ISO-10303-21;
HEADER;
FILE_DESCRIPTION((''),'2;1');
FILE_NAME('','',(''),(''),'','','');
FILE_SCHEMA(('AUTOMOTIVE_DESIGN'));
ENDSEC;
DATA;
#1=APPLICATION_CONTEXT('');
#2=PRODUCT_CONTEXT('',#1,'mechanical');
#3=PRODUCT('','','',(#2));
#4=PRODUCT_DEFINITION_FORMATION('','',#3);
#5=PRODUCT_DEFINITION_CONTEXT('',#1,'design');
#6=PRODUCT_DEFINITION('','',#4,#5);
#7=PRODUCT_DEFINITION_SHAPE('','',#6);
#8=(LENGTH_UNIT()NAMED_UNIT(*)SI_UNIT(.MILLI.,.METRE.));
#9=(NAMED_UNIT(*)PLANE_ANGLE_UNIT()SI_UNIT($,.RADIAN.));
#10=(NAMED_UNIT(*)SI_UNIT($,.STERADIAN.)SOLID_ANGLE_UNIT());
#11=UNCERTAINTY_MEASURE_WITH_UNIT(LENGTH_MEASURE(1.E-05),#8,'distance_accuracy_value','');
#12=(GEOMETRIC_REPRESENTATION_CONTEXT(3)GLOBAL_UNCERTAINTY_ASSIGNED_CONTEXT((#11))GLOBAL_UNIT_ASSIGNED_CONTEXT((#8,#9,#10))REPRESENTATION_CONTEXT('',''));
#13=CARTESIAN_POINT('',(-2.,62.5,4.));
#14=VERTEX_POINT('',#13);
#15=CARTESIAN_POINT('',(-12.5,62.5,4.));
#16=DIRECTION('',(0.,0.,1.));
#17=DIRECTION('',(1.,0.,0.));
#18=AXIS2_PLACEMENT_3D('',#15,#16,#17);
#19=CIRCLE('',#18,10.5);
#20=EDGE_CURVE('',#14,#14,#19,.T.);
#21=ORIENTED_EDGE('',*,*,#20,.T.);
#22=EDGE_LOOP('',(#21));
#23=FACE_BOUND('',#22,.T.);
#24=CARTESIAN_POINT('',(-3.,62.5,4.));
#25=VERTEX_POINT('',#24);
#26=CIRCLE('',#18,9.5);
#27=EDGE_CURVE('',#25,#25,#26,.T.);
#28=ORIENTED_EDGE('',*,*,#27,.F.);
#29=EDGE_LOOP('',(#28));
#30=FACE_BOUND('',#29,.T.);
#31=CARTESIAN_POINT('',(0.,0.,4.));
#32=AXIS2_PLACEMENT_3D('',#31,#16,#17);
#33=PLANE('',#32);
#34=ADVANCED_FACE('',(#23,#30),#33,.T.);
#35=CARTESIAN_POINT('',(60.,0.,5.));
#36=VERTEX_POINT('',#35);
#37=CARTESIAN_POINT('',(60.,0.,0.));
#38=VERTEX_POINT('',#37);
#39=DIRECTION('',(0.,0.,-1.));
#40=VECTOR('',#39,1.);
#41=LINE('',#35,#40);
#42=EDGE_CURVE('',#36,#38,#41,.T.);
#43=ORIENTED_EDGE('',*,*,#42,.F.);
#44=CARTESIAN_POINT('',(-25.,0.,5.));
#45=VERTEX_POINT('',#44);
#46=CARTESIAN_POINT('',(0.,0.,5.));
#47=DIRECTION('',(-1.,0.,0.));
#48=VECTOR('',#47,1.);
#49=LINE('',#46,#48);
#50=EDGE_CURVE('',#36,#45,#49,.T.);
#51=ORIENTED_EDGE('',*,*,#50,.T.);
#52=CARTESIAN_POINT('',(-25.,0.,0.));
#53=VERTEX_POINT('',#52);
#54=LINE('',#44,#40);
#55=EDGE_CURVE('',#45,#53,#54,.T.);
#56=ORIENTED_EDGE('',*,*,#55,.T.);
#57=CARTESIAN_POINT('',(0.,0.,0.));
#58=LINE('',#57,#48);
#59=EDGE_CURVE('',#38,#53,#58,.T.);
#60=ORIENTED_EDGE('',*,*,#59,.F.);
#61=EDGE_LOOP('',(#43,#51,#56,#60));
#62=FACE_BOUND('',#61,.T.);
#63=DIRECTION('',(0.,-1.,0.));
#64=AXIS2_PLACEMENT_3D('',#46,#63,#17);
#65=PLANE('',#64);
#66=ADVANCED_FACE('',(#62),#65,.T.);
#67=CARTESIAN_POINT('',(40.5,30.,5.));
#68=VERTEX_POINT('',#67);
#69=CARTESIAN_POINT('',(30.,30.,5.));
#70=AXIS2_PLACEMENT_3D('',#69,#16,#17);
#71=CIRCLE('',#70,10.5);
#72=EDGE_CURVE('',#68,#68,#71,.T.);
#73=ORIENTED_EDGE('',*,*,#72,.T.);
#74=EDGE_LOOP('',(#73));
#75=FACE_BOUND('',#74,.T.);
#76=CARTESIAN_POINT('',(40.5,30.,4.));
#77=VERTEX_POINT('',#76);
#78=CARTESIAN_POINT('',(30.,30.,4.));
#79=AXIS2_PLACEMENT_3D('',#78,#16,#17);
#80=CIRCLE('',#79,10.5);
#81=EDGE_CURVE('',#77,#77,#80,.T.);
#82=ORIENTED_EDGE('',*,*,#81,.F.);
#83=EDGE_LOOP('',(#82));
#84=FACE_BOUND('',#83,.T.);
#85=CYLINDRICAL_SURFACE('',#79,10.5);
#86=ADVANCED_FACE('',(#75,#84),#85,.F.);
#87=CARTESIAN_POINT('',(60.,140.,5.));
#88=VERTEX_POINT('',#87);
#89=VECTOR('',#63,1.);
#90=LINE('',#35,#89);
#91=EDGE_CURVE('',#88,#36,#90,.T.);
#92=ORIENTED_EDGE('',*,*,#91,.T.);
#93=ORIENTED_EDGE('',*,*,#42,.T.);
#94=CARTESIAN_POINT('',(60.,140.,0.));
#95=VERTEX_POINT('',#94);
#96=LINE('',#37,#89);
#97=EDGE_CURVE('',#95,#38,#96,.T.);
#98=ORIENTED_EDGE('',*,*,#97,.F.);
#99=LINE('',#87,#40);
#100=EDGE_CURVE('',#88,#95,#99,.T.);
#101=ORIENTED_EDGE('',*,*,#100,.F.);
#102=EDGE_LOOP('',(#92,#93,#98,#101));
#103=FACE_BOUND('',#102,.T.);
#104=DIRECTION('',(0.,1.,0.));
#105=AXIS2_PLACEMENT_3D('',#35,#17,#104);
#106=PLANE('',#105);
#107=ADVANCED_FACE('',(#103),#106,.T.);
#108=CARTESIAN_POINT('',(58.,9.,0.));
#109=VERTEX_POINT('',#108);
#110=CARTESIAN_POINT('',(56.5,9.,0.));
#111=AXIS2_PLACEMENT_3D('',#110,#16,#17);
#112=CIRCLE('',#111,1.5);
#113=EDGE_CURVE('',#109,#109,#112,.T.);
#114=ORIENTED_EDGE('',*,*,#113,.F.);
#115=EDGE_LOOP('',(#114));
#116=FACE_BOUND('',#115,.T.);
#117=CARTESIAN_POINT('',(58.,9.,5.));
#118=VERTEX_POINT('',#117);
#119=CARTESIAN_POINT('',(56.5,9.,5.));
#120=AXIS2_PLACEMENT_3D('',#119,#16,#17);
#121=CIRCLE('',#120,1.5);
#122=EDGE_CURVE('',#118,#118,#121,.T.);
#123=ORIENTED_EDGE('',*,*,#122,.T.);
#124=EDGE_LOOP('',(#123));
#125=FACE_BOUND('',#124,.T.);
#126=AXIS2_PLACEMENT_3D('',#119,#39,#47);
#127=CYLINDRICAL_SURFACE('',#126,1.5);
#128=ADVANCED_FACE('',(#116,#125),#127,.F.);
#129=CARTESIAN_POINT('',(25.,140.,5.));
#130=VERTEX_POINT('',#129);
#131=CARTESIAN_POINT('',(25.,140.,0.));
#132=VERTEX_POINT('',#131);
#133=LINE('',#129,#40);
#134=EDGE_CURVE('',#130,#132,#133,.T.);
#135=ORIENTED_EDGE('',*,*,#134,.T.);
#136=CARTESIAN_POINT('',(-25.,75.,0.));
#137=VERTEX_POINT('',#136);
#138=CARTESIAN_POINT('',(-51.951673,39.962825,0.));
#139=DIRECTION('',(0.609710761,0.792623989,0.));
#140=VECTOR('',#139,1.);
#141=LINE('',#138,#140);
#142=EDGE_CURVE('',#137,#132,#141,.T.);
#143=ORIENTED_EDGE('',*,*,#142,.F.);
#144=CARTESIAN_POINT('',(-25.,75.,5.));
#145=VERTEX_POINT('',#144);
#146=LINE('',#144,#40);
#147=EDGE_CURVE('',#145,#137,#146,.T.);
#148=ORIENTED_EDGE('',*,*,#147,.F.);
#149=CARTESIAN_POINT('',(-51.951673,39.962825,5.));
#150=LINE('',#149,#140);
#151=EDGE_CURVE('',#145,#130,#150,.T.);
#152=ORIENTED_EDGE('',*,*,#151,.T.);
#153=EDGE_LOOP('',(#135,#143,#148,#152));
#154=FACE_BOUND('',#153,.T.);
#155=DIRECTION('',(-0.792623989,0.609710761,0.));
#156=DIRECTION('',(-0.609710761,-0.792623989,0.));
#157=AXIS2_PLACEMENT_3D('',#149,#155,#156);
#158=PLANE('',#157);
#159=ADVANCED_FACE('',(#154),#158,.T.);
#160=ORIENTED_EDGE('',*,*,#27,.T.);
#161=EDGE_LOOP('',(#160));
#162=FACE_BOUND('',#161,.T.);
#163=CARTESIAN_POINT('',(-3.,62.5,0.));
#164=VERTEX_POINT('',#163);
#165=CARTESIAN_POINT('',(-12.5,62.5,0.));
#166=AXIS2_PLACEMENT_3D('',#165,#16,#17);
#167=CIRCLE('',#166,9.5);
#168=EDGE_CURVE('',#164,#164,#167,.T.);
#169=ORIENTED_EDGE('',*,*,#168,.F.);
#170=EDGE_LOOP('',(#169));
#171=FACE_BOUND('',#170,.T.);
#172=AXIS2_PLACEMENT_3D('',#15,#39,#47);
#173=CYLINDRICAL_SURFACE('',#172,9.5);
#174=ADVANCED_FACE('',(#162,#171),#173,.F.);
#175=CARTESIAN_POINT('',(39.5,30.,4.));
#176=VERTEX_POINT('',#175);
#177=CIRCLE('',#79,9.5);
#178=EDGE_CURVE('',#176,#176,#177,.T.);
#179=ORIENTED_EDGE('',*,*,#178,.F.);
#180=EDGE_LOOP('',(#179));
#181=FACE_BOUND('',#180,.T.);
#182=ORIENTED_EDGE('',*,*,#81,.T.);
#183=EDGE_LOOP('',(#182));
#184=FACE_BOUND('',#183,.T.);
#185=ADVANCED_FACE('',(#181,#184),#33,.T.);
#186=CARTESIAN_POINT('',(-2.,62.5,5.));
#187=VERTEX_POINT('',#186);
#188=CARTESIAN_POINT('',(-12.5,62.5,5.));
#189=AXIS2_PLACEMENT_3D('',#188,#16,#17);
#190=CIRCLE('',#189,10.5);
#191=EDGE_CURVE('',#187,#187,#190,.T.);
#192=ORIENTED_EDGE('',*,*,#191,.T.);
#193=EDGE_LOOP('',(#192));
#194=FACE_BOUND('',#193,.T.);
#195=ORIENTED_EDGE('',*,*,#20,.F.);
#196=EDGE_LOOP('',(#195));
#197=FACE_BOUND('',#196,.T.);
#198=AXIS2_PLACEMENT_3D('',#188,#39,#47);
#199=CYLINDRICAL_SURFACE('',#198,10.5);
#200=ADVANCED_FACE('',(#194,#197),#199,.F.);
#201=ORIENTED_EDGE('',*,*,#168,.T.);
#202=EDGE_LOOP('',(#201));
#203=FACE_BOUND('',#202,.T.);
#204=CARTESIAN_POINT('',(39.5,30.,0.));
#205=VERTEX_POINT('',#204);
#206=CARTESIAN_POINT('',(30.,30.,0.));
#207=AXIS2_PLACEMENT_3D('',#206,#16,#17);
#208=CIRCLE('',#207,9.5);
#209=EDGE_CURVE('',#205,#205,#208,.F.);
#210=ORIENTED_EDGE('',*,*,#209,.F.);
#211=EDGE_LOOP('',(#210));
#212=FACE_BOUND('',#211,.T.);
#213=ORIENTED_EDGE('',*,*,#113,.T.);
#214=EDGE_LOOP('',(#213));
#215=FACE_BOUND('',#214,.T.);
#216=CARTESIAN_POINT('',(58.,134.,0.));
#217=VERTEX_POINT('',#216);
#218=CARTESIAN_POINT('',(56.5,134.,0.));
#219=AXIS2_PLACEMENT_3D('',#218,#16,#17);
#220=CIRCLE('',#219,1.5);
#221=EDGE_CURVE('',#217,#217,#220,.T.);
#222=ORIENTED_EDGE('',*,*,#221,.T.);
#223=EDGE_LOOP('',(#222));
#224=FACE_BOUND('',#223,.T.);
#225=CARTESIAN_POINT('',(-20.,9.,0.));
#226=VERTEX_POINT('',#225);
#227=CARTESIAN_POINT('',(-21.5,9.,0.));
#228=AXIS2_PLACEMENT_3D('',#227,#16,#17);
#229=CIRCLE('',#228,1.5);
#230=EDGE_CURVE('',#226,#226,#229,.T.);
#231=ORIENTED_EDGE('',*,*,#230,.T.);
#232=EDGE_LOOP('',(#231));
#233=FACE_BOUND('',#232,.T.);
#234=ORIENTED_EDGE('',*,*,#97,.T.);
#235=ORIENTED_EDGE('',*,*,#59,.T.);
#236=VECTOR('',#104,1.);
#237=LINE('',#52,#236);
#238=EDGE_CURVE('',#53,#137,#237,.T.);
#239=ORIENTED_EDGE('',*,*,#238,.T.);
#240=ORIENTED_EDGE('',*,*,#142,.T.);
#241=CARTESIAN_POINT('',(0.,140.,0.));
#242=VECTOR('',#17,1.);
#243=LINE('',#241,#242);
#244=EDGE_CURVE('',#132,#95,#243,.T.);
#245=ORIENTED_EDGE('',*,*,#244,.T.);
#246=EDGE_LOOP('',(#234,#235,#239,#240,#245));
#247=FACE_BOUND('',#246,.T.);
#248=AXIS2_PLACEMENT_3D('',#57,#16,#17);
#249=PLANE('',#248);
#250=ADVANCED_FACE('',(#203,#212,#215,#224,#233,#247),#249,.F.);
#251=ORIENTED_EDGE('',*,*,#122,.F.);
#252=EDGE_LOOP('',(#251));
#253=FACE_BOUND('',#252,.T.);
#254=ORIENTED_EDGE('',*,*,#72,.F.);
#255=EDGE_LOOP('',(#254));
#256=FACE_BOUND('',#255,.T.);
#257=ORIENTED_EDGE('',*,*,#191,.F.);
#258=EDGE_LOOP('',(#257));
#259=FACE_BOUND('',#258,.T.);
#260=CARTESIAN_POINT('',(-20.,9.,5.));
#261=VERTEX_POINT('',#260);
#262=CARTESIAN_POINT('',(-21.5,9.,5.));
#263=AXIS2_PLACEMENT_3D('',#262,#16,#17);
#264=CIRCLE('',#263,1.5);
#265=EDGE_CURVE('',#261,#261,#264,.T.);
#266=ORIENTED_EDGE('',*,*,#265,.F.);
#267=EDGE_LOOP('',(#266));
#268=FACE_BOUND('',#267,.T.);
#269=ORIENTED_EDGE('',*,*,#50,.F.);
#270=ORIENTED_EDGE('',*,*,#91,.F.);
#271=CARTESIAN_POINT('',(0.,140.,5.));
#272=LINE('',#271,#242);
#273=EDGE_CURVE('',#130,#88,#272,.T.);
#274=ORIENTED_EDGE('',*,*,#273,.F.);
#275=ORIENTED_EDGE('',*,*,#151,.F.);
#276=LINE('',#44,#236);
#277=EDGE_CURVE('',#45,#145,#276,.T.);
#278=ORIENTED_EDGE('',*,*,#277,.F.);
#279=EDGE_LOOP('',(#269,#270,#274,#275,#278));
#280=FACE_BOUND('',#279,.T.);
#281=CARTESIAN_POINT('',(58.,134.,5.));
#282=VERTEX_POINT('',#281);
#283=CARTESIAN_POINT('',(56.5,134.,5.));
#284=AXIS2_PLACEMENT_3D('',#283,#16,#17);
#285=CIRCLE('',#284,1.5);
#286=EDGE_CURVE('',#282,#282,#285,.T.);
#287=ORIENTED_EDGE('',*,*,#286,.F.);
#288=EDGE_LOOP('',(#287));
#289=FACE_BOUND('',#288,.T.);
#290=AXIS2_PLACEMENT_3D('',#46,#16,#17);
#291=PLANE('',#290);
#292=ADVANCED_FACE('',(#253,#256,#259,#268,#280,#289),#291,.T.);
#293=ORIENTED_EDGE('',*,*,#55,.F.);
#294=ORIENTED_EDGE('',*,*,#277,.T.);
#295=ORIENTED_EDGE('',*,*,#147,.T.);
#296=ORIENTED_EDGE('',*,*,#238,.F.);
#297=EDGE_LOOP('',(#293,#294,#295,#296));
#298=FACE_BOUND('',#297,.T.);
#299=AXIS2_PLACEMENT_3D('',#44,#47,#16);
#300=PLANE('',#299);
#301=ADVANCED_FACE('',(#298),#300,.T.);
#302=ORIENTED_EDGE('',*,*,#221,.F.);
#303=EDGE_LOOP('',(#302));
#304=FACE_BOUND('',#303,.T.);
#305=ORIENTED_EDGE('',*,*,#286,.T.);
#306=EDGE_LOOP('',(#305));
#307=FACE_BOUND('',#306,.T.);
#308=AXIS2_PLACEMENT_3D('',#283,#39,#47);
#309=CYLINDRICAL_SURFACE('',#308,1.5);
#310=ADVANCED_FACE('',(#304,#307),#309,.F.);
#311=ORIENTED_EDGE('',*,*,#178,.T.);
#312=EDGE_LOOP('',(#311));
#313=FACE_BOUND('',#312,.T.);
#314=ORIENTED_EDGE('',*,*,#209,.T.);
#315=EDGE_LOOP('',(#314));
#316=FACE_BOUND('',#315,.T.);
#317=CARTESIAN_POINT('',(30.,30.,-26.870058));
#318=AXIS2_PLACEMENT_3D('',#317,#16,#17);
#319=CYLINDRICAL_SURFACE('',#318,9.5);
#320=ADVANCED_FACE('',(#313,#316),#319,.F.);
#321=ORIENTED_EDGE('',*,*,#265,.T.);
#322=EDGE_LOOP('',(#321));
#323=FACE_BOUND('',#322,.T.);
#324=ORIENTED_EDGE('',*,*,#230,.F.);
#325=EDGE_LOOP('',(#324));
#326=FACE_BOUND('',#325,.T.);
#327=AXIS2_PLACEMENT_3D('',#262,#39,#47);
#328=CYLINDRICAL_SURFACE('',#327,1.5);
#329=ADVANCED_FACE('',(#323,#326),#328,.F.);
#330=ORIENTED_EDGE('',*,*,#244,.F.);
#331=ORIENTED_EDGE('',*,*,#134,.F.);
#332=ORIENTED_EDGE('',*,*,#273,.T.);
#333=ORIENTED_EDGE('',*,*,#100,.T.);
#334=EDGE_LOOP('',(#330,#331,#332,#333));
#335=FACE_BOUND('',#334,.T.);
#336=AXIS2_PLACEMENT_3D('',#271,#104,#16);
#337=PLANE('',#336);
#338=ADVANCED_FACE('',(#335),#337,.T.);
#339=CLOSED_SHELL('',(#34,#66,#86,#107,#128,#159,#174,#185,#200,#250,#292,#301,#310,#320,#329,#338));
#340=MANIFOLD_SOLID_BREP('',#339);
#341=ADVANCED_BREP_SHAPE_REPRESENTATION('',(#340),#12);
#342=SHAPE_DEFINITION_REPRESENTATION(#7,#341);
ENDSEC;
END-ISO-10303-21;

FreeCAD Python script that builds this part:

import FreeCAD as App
import Part
import Sketcher

V = App.Vector

doc = App.newDocument("Part")
body = doc.addObject("PartDesign::Body", "Body")

# Sketch on XY plane
sketch1 = body.newObject("Sketcher::SketchObject", "Sketch")
sketch1.AttachmentSupport = (doc.getObject("XY_Plane"), [""])
sketch1.MapMode = "FlatFace"
sketch1.addGeometry([
    Part.LineSegment(V(-25, 0, 0), V(60, 0, 0)),  # 0
    Part.LineSegment(V(60, 0, 0), V(60, 140, 0)),  # 1
    Part.LineSegment(V(60, 140, 0), V(25, 140, 0)),  # 2
    Part.LineSegment(V(25, 140, 0), V(-25, 75, 0)),  # 3
    Part.LineSegment(V(-25, 75, 0), V(-25, 0, 0)),  # 4
    Part.Circle(V(-21.5, 9, 0), V(0, 0, 1), 1.5),  # 5
    Part.Circle(V(-12.5, 62.5, 0), V(0, 0, 1), 10.5),  # 6
    Part.Circle(V(56.5, 9, 0), V(0, 0, 1), 1.5),  # 7
    Part.Circle(V(56.5, 134, 0), V(0, 0, 1), 1.5),  # 8
], False)
sketch1.addConstraint([
    Sketcher.Constraint("Coincident", 0, 2, 1, 1),
    Sketcher.Constraint("Coincident", 1, 2, 2, 1),
    Sketcher.Constraint("Coincident", 2, 2, 3, 1),
    Sketcher.Constraint("Coincident", 3, 2, 4, 1),
    Sketcher.Constraint("Coincident", 4, 2, 0, 1),
    Sketcher.Constraint("Horizontal", 0),
    Sketcher.Constraint("Vertical", 1),
    Sketcher.Constraint("Horizontal", 2),
    Sketcher.Constraint("Vertical", 4),
    Sketcher.Constraint("Equal", 5, 7),
    Sketcher.Constraint("Equal", 7, 8),
    Sketcher.Constraint("PointOnObject", 0, 2, -1),
    Sketcher.Constraint("Horizontal", 5, 3, 7, 3),
    Sketcher.Constraint("Vertical", 7, 3, 8, 3),
    Sketcher.Constraint("Diameter", 5, 3.0),
    Sketcher.Constraint("Diameter", 6, 21.0),
    Sketcher.Constraint("DistanceX", 0, 1, 0, 2, 85.0),
    Sketcher.Constraint("DistanceX", 2, 2, 2, 1, 35.0),
    Sketcher.Constraint("DistanceY", 1, 1, 1, 2, 140.0),
    Sketcher.Constraint("DistanceY", 4, 2, 4, 1, 75.0),
    Sketcher.Constraint("DistanceY", -1, 1, 5, 3, 9.0),
    Sketcher.Constraint("DistanceY", -1, 1, 8, 3, 134.0),
    Sketcher.Constraint("DistanceX", -1, 1, 0, 2, 60.0),
    Sketcher.Constraint("DistanceX", 5, 3, 6, 3, 9.0),
    Sketcher.Constraint("DistanceX", 5, 3, 7, 3, 78.0),
    Sketcher.Constraint("DistanceX", 5, 3, -1, 1, 21.5),
    Sketcher.Constraint("DistanceY", -1, 1, 6, 3, 62.5),
])
pad1 = body.newObject("PartDesign::Pad", "Pad")
pad1.Profile = sketch1
pad1.Length = 5

# Sketch on XY plane
sketch2 = body.newObject("Sketcher::SketchObject", "Sketch001")
sketch2.AttachmentSupport = (doc.getObject("XY_Plane"), [""])
sketch2.MapMode = "FlatFace"
sketch2.addGeometry([
    Part.Circle(V(-12, 62, 0), V(0, 0, 1), 10),
    Part.Circle(V(-12, 62, 0), V(0, 0, 1), 10),
], False)
sketch2.addConstraint([
    Sketcher.Constraint("Coincident", 1, 3, 0, 3),
    Sketcher.Constraint("Diameter", 0, 21.0),
    Sketcher.Constraint("Diameter", 1, 19.0),
    Sketcher.Constraint("DistanceX", 0, 3, -1, 1, 12.5),
    Sketcher.Constraint("DistanceY", -1, 1, 0, 3, 62.5),
])
pad2 = body.newObject("PartDesign::Pad", "Pad001")
pad2.Profile = sketch2
pad2.Length = 4

# Sketch on XY plane
sketch3 = body.newObject("Sketcher::SketchObject", "Sketch002")
sketch3.AttachmentSupport = (doc.getObject("XY_Plane"), [""])
sketch3.MapMode = "FlatFace"
sketch3.AttachmentOffset = App.Placement(V(0, 0, 5), App.Rotation())
sketch3.addGeometry(Part.Circle(V(30, 30, 0), V(0, 0, 1), 10), False)
sketch3.addConstraint([
    Sketcher.Constraint("Diameter", 0, 19.0),
    Sketcher.Constraint("DistanceX", -1, 1, 0, 3, 30.0),
    Sketcher.Constraint("DistanceY", -1, 1, 0, 3, 30.0),
])
pocket1 = body.newObject("PartDesign::Pocket", "Pocket")
pocket1.Profile = sketch3
pocket1.Length = 5

# Sketch on XY plane
sketch4 = body.newObject("Sketcher::SketchObject", "Sketch003")
sketch4.AttachmentSupport = (doc.getObject("XY_Plane"), [""])
sketch4.MapMode = "FlatFace"
sketch4.AttachmentOffset = App.Placement(V(0, 0, 5), App.Rotation())
sketch4.addGeometry([
    Part.Circle(V(30, 30, 0), V(0, 0, 1), 10),
    Part.Circle(V(30, 30, 0), V(0, 0, 1), 10),
], False)
sketch4.addConstraint([
    Sketcher.Constraint("Coincident", 1, 3, 0, 3),
    Sketcher.Constraint("Diameter", 0, 21.0),
    Sketcher.Constraint("Diameter", 1, 19.0),
    Sketcher.Constraint("DistanceX", -1, 1, 0, 3, 30.0),
    Sketcher.Constraint("DistanceY", -1, 1, 0, 3, 30.0),
])
pocket2 = body.newObject("PartDesign::Pocket", "Pocket001")
pocket2.Profile = sketch4
pocket2.Length = 1

doc.recompute()
